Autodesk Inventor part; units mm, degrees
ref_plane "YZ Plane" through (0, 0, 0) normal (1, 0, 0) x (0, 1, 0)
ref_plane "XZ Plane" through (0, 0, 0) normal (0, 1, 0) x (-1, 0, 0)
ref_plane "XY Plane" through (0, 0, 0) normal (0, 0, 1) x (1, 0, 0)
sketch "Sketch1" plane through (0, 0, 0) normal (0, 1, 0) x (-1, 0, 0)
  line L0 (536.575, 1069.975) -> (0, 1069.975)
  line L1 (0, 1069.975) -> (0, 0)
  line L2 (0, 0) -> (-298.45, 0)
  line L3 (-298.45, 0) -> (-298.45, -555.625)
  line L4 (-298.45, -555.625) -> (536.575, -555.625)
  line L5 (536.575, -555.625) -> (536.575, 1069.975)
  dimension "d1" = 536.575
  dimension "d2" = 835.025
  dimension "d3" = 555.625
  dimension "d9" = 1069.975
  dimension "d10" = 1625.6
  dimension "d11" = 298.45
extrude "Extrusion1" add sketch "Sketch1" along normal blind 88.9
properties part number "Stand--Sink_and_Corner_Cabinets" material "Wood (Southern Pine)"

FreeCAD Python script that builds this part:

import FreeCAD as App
import Part
import Sketcher
from FreeCAD import Vector
Q = App.Units.Quantity

doc = App.newDocument("Part")
body = doc.addObject("PartDesign::Body", "Body")

# Sketch on XZ plane
sketch1 = body.newObject("Sketcher::SketchObject", "Sketch")
sketch1.AttachmentSupport = (doc.getObject("XZ_Plane"), [""])
sketch1.MapMode = "FlatFace"
sketch1.addGeometry([
    Part.LineSegment(Vector(-536.575, -555.625, 0), Vector(-536.575, 1069.975, 0)),  # 0
    Part.LineSegment(Vector(-536.575, 1069.975, 0), Vector(0, 1069.975, 0)),  # 1
    Part.LineSegment(Vector(0, 1069.975, 0), Vector(0, 0, 0)),  # 2
    Part.LineSegment(Vector(0, 0, 0), Vector(298.45, 0, 0)),  # 3
    Part.LineSegment(Vector(298.45, 0, 0), Vector(298.45, -555.625, 0)),  # 4
    Part.LineSegment(Vector(298.45, -555.625, 0), Vector(-536.575, -555.625, 0)),  # 5
], False)
sketch1.addConstraint([
    Sketcher.Constraint("Coincident", 0, 2, 1, 1),
    Sketcher.Constraint("Coincident", 1, 2, 2, 1),
    Sketcher.Constraint("Coincident", 2, 2, 3, 1),
    Sketcher.Constraint("Coincident", 3, 2, 4, 1),
    Sketcher.Constraint("Coincident", 4, 2, 5, 1),
    Sketcher.Constraint("Coincident", 5, 2, 0, 1),
    Sketcher.Constraint("Vertical", 0),
    Sketcher.Constraint("Horizontal", 1),
    Sketcher.Constraint("Vertical", 2),
    Sketcher.Constraint("Horizontal", 3),
    Sketcher.Constraint("Vertical", 4),
    Sketcher.Constraint("Horizontal", 5),
    Sketcher.Constraint("Coincident", 2, 2, -1, 1),
    Sketcher.Constraint("DistanceY", 0, 1, 0, 2, Q("64 in")),
    Sketcher.Constraint("DistanceX", 3, 1, 3, 2, Q("11.75 in")),
    Sketcher.Constraint("DistanceX", 1, 1, 1, 2, Q("21.125 in")),
    Sketcher.Constraint("DistanceY", 2, 2, 2, 1, Q("42.125 in")),
])
pad1 = body.newObject("PartDesign::Pad", "Pad")
pad1.Profile = sketch1
pad1.Length = Q("3.5 in")
pad1.Reversed = True

doc.recompute()
